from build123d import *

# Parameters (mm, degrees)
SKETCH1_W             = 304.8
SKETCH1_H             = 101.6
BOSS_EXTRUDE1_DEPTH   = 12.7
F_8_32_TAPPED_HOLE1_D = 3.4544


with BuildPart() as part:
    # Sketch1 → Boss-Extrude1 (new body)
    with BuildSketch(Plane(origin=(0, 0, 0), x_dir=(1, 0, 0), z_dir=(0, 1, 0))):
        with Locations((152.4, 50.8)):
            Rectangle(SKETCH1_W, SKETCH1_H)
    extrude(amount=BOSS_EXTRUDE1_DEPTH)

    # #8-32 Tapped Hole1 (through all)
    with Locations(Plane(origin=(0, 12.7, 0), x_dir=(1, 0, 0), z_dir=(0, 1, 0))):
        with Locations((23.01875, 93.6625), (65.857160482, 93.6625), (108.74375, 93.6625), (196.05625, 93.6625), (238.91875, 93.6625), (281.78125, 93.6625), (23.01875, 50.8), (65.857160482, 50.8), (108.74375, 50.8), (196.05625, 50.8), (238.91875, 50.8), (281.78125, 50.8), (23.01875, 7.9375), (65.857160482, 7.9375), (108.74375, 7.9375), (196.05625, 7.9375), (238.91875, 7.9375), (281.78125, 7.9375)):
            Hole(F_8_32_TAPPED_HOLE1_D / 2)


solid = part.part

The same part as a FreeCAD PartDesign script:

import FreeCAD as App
import Part
import Sketcher
from FreeCAD import Vector
Q = App.Units.Quantity


def add_polygon(sketch, points):
    """Adds a closed chain of lines whose ends are joined by coincident constraints."""
    first, n = sketch.GeometryCount, len(points)
    for a, b in zip(points, points[1:] + points[:1]):
        sketch.addGeometry(Part.LineSegment(App.Vector(*a, 0), App.Vector(*b, 0)), False)
    for i in range(n):
        sketch.addConstraint(Sketcher.Constraint("Coincident", first + i, 2, first + (i + 1) % n, 1))

doc = App.newDocument("Part")
body = doc.addObject("PartDesign::Body", "Body")

sketch1 = doc.addObject("Sketcher::SketchObject", "Sketch")
body.addObject(sketch1)
sketch1.AttachmentSupport = (doc.XZ_Plane, [""])
sketch1.MapMode = "FlatFace"
add_polygon(sketch1, [(0, -101.6), (0, 0), (304.8, 0), (304.8, -101.6)])
sketch1.addConstraint([
    Sketcher.Constraint("Vertical", 0),
    Sketcher.Constraint("Horizontal", 1),
    Sketcher.Constraint("Vertical", 2),
    Sketcher.Constraint("Horizontal", 3),
    Sketcher.Constraint("Coincident", 0, 2, -1, 1),
    Sketcher.Constraint("DistanceX", 1, 1, 1, 2, Q("12 in")),
    Sketcher.Constraint("DistanceY", 0, 1, 0, 2, Q("4 in")),
])
pad1 = doc.addObject("PartDesign::Pad", "Pad")
body.addObject(pad1)
pad1.Profile = sketch1
pad1.Length = Q("0.5 in")
pad1.Reversed = True

sketch2 = doc.addObject("Sketcher::SketchObject", "Sketch001")
body.addObject(sketch2)
sketch2.AttachmentSupport = (doc.XZ_Plane, [""])
sketch2.MapMode = "FlatFace"
sketch2.AttachmentOffset = App.Placement(Vector(0, 0, -0.5 * 25.4), App.Rotation())
sketch2.addGeometry([
    Part.Circle(Vector(23.01875, -93.6625, 0), Vector(0, 0, 1), 1.7272),
    Part.Circle(Vector(65.85716, -93.6625, 0), Vector(0, 0, 1), 1.7272),
    Part.Circle(Vector(108.74375, -93.6625, 0), Vector(0, 0, 1), 1.7272),
    Part.Circle(Vector(196.05625, -93.6625, 0), Vector(0, 0, 1), 1.7272),
    Part.Circle(Vector(238.91875, -93.6625, 0), Vector(0, 0, 1), 1.7272),
    Part.Circle(Vector(281.78125, -93.6625, 0), Vector(0, 0, 1), 1.7272),
    Part.Circle(Vector(23.01875, -50.8, 0), Vector(0, 0, 1), 1.7272),
    Part.Circle(Vector(65.85716, -50.8, 0), Vector(0, 0, 1), 1.7272),
    Part.Circle(Vector(108.74375, -50.8, 0), Vector(0, 0, 1), 1.7272),
    Part.Circle(Vector(196.05625, -50.8, 0), Vector(0, 0, 1), 1.7272),
    Part.Circle(Vector(238.91875, -50.8, 0), Vector(0, 0, 1), 1.7272),
    Part.Circle(Vector(281.78125, -50.8, 0), Vector(0, 0, 1), 1.7272),
    Part.Circle(Vector(23.01875, -7.9375, 0), Vector(0, 0, 1), 1.7272),
    Part.Circle(Vector(65.85716, -7.9375, 0), Vector(0, 0, 1), 1.7272),
    Part.Circle(Vector(108.74375, -7.9375, 0), Vector(0, 0, 1), 1.7272),
    Part.Circle(Vector(196.05625, -7.9375, 0), Vector(0, 0, 1), 1.7272),
    Part.Circle(Vector(238.91875, -7.9375, 0), Vector(0, 0, 1), 1.7272),
    Part.Circle(Vector(281.78125, -7.9375, 0), Vector(0, 0, 1), 1.7272),
], False)
sketch2.addConstraint([
    Sketcher.Constraint("Equal", 0, 1),
    Sketcher.Constraint("Equal", 1, 2),
    Sketcher.Constraint("Equal", 2, 3),
    Sketcher.Constraint("Equal", 3, 4),
    Sketcher.Constraint("Equal", 4, 5),
    Sketcher.Constraint("Equal", 5, 6),
    Sketcher.Constraint("Equal", 6, 7),
    Sketcher.Constraint("Equal", 7, 8),
    Sketcher.Constraint("Equal", 8, 9),
    Sketcher.Constraint("Equal", 9, 10),
    Sketcher.Constraint("Equal", 10, 11),
    Sketcher.Constraint("Equal", 11, 12),
    Sketcher.Constraint("Equal", 12, 13),
    Sketcher.Constraint("Equal", 13, 14),
    Sketcher.Constraint("Equal", 14, 15),
    Sketcher.Constraint("Equal", 15, 16),
    Sketcher.Constraint("Equal", 16, 17),
    Sketcher.Constraint("Horizontal", 0, 3, 1, 3),
    Sketcher.Constraint("Horizontal", 1, 3, 2, 3),
    Sketcher.Constraint("Horizontal", 2, 3, 3, 3),
    Sketcher.Constraint("Horizontal", 3, 3, 4, 3),
    Sketcher.Constraint("Horizontal", 4, 3, 5, 3),
    Sketcher.Constraint("Horizontal", 6, 3, 7, 3),
    Sketcher.Constraint("Horizontal", 7, 3, 8, 3),
    Sketcher.Constraint("Horizontal", 8, 3, 9, 3),
    Sketcher.Constraint("Horizontal", 9, 3, 10, 3),
    Sketcher.Constraint("Horizontal", 10, 3, 11, 3),
    Sketcher.Constraint("Horizontal", 12, 3, 13, 3),
    Sketcher.Constraint("Horizontal", 13, 3, 14, 3),
    Sketcher.Constraint("Horizontal", 14, 3, 15, 3),
    Sketcher.Constraint("Horizontal", 15, 3, 16, 3),
    Sketcher.Constraint("Horizontal", 16, 3, 17, 3),
    Sketcher.Constraint("Vertical", 0, 3, 6, 3),
    Sketcher.Constraint("Vertical", 1, 3, 7, 3),
    Sketcher.Constraint("Vertical", 2, 3, 8, 3),
    Sketcher.Constraint("Vertical", 3, 3, 9, 3),
    Sketcher.Constraint("Vertical", 4, 3, 10, 3),
    Sketcher.Constraint("Vertical", 5, 3, 11, 3),
    Sketcher.Constraint("Vertical", 6, 3, 12, 3),
    Sketcher.Constraint("Vertical", 7, 3, 13, 3),
    Sketcher.Constraint("Vertical", 8, 3, 14, 3),
    Sketcher.Constraint("Vertical", 9, 3, 15, 3),
    Sketcher.Constraint("Vertical", 10, 3, 16, 3),
    Sketcher.Constraint("Vertical", 11, 3, 17, 3),
    Sketcher.Constraint("Diameter", 0, Q("0.136 in")),
    Sketcher.Constraint("DistanceY", 6, 3, -1, 1, Q("2 in")),
    Sketcher.Constraint("DistanceX", 0, 3, 4, 3, Q("8.5 in")),
    Sketcher.Constraint("DistanceX", -1, 1, 0, 3, Q("0.90625 in")),
    Sketcher.Constraint("DistanceY", 0, 3, -1, 1, Q("3.6875 in")),
    Sketcher.Constraint("DistanceX", -1, 1, 2, 3, Q("4.28125 in")),
    Sketcher.Constraint("DistanceX", -1, 1, 3, 3, Q("7.71875 in")),
    Sketcher.Constraint("DistanceX", -1, 1, 5, 3, Q("11.09375 in")),
    Sketcher.Constraint("DistanceY", 12, 3, -1, 1, Q("0.3125 in")),
    Sketcher.Constraint("DistanceX", -1, 1, 1, 3, 65.85716),
])
doc.recompute()
hole = doc.addObject("PartDesign::Hole", "Hole")
body.addObject(hole)
hole.Profile = sketch2
hole.ThreadType = "None"
hole.Diameter = Q("0.136 in")
hole.DepthType = "ThroughAll"
hole.Reversed = True

doc.recompute()
